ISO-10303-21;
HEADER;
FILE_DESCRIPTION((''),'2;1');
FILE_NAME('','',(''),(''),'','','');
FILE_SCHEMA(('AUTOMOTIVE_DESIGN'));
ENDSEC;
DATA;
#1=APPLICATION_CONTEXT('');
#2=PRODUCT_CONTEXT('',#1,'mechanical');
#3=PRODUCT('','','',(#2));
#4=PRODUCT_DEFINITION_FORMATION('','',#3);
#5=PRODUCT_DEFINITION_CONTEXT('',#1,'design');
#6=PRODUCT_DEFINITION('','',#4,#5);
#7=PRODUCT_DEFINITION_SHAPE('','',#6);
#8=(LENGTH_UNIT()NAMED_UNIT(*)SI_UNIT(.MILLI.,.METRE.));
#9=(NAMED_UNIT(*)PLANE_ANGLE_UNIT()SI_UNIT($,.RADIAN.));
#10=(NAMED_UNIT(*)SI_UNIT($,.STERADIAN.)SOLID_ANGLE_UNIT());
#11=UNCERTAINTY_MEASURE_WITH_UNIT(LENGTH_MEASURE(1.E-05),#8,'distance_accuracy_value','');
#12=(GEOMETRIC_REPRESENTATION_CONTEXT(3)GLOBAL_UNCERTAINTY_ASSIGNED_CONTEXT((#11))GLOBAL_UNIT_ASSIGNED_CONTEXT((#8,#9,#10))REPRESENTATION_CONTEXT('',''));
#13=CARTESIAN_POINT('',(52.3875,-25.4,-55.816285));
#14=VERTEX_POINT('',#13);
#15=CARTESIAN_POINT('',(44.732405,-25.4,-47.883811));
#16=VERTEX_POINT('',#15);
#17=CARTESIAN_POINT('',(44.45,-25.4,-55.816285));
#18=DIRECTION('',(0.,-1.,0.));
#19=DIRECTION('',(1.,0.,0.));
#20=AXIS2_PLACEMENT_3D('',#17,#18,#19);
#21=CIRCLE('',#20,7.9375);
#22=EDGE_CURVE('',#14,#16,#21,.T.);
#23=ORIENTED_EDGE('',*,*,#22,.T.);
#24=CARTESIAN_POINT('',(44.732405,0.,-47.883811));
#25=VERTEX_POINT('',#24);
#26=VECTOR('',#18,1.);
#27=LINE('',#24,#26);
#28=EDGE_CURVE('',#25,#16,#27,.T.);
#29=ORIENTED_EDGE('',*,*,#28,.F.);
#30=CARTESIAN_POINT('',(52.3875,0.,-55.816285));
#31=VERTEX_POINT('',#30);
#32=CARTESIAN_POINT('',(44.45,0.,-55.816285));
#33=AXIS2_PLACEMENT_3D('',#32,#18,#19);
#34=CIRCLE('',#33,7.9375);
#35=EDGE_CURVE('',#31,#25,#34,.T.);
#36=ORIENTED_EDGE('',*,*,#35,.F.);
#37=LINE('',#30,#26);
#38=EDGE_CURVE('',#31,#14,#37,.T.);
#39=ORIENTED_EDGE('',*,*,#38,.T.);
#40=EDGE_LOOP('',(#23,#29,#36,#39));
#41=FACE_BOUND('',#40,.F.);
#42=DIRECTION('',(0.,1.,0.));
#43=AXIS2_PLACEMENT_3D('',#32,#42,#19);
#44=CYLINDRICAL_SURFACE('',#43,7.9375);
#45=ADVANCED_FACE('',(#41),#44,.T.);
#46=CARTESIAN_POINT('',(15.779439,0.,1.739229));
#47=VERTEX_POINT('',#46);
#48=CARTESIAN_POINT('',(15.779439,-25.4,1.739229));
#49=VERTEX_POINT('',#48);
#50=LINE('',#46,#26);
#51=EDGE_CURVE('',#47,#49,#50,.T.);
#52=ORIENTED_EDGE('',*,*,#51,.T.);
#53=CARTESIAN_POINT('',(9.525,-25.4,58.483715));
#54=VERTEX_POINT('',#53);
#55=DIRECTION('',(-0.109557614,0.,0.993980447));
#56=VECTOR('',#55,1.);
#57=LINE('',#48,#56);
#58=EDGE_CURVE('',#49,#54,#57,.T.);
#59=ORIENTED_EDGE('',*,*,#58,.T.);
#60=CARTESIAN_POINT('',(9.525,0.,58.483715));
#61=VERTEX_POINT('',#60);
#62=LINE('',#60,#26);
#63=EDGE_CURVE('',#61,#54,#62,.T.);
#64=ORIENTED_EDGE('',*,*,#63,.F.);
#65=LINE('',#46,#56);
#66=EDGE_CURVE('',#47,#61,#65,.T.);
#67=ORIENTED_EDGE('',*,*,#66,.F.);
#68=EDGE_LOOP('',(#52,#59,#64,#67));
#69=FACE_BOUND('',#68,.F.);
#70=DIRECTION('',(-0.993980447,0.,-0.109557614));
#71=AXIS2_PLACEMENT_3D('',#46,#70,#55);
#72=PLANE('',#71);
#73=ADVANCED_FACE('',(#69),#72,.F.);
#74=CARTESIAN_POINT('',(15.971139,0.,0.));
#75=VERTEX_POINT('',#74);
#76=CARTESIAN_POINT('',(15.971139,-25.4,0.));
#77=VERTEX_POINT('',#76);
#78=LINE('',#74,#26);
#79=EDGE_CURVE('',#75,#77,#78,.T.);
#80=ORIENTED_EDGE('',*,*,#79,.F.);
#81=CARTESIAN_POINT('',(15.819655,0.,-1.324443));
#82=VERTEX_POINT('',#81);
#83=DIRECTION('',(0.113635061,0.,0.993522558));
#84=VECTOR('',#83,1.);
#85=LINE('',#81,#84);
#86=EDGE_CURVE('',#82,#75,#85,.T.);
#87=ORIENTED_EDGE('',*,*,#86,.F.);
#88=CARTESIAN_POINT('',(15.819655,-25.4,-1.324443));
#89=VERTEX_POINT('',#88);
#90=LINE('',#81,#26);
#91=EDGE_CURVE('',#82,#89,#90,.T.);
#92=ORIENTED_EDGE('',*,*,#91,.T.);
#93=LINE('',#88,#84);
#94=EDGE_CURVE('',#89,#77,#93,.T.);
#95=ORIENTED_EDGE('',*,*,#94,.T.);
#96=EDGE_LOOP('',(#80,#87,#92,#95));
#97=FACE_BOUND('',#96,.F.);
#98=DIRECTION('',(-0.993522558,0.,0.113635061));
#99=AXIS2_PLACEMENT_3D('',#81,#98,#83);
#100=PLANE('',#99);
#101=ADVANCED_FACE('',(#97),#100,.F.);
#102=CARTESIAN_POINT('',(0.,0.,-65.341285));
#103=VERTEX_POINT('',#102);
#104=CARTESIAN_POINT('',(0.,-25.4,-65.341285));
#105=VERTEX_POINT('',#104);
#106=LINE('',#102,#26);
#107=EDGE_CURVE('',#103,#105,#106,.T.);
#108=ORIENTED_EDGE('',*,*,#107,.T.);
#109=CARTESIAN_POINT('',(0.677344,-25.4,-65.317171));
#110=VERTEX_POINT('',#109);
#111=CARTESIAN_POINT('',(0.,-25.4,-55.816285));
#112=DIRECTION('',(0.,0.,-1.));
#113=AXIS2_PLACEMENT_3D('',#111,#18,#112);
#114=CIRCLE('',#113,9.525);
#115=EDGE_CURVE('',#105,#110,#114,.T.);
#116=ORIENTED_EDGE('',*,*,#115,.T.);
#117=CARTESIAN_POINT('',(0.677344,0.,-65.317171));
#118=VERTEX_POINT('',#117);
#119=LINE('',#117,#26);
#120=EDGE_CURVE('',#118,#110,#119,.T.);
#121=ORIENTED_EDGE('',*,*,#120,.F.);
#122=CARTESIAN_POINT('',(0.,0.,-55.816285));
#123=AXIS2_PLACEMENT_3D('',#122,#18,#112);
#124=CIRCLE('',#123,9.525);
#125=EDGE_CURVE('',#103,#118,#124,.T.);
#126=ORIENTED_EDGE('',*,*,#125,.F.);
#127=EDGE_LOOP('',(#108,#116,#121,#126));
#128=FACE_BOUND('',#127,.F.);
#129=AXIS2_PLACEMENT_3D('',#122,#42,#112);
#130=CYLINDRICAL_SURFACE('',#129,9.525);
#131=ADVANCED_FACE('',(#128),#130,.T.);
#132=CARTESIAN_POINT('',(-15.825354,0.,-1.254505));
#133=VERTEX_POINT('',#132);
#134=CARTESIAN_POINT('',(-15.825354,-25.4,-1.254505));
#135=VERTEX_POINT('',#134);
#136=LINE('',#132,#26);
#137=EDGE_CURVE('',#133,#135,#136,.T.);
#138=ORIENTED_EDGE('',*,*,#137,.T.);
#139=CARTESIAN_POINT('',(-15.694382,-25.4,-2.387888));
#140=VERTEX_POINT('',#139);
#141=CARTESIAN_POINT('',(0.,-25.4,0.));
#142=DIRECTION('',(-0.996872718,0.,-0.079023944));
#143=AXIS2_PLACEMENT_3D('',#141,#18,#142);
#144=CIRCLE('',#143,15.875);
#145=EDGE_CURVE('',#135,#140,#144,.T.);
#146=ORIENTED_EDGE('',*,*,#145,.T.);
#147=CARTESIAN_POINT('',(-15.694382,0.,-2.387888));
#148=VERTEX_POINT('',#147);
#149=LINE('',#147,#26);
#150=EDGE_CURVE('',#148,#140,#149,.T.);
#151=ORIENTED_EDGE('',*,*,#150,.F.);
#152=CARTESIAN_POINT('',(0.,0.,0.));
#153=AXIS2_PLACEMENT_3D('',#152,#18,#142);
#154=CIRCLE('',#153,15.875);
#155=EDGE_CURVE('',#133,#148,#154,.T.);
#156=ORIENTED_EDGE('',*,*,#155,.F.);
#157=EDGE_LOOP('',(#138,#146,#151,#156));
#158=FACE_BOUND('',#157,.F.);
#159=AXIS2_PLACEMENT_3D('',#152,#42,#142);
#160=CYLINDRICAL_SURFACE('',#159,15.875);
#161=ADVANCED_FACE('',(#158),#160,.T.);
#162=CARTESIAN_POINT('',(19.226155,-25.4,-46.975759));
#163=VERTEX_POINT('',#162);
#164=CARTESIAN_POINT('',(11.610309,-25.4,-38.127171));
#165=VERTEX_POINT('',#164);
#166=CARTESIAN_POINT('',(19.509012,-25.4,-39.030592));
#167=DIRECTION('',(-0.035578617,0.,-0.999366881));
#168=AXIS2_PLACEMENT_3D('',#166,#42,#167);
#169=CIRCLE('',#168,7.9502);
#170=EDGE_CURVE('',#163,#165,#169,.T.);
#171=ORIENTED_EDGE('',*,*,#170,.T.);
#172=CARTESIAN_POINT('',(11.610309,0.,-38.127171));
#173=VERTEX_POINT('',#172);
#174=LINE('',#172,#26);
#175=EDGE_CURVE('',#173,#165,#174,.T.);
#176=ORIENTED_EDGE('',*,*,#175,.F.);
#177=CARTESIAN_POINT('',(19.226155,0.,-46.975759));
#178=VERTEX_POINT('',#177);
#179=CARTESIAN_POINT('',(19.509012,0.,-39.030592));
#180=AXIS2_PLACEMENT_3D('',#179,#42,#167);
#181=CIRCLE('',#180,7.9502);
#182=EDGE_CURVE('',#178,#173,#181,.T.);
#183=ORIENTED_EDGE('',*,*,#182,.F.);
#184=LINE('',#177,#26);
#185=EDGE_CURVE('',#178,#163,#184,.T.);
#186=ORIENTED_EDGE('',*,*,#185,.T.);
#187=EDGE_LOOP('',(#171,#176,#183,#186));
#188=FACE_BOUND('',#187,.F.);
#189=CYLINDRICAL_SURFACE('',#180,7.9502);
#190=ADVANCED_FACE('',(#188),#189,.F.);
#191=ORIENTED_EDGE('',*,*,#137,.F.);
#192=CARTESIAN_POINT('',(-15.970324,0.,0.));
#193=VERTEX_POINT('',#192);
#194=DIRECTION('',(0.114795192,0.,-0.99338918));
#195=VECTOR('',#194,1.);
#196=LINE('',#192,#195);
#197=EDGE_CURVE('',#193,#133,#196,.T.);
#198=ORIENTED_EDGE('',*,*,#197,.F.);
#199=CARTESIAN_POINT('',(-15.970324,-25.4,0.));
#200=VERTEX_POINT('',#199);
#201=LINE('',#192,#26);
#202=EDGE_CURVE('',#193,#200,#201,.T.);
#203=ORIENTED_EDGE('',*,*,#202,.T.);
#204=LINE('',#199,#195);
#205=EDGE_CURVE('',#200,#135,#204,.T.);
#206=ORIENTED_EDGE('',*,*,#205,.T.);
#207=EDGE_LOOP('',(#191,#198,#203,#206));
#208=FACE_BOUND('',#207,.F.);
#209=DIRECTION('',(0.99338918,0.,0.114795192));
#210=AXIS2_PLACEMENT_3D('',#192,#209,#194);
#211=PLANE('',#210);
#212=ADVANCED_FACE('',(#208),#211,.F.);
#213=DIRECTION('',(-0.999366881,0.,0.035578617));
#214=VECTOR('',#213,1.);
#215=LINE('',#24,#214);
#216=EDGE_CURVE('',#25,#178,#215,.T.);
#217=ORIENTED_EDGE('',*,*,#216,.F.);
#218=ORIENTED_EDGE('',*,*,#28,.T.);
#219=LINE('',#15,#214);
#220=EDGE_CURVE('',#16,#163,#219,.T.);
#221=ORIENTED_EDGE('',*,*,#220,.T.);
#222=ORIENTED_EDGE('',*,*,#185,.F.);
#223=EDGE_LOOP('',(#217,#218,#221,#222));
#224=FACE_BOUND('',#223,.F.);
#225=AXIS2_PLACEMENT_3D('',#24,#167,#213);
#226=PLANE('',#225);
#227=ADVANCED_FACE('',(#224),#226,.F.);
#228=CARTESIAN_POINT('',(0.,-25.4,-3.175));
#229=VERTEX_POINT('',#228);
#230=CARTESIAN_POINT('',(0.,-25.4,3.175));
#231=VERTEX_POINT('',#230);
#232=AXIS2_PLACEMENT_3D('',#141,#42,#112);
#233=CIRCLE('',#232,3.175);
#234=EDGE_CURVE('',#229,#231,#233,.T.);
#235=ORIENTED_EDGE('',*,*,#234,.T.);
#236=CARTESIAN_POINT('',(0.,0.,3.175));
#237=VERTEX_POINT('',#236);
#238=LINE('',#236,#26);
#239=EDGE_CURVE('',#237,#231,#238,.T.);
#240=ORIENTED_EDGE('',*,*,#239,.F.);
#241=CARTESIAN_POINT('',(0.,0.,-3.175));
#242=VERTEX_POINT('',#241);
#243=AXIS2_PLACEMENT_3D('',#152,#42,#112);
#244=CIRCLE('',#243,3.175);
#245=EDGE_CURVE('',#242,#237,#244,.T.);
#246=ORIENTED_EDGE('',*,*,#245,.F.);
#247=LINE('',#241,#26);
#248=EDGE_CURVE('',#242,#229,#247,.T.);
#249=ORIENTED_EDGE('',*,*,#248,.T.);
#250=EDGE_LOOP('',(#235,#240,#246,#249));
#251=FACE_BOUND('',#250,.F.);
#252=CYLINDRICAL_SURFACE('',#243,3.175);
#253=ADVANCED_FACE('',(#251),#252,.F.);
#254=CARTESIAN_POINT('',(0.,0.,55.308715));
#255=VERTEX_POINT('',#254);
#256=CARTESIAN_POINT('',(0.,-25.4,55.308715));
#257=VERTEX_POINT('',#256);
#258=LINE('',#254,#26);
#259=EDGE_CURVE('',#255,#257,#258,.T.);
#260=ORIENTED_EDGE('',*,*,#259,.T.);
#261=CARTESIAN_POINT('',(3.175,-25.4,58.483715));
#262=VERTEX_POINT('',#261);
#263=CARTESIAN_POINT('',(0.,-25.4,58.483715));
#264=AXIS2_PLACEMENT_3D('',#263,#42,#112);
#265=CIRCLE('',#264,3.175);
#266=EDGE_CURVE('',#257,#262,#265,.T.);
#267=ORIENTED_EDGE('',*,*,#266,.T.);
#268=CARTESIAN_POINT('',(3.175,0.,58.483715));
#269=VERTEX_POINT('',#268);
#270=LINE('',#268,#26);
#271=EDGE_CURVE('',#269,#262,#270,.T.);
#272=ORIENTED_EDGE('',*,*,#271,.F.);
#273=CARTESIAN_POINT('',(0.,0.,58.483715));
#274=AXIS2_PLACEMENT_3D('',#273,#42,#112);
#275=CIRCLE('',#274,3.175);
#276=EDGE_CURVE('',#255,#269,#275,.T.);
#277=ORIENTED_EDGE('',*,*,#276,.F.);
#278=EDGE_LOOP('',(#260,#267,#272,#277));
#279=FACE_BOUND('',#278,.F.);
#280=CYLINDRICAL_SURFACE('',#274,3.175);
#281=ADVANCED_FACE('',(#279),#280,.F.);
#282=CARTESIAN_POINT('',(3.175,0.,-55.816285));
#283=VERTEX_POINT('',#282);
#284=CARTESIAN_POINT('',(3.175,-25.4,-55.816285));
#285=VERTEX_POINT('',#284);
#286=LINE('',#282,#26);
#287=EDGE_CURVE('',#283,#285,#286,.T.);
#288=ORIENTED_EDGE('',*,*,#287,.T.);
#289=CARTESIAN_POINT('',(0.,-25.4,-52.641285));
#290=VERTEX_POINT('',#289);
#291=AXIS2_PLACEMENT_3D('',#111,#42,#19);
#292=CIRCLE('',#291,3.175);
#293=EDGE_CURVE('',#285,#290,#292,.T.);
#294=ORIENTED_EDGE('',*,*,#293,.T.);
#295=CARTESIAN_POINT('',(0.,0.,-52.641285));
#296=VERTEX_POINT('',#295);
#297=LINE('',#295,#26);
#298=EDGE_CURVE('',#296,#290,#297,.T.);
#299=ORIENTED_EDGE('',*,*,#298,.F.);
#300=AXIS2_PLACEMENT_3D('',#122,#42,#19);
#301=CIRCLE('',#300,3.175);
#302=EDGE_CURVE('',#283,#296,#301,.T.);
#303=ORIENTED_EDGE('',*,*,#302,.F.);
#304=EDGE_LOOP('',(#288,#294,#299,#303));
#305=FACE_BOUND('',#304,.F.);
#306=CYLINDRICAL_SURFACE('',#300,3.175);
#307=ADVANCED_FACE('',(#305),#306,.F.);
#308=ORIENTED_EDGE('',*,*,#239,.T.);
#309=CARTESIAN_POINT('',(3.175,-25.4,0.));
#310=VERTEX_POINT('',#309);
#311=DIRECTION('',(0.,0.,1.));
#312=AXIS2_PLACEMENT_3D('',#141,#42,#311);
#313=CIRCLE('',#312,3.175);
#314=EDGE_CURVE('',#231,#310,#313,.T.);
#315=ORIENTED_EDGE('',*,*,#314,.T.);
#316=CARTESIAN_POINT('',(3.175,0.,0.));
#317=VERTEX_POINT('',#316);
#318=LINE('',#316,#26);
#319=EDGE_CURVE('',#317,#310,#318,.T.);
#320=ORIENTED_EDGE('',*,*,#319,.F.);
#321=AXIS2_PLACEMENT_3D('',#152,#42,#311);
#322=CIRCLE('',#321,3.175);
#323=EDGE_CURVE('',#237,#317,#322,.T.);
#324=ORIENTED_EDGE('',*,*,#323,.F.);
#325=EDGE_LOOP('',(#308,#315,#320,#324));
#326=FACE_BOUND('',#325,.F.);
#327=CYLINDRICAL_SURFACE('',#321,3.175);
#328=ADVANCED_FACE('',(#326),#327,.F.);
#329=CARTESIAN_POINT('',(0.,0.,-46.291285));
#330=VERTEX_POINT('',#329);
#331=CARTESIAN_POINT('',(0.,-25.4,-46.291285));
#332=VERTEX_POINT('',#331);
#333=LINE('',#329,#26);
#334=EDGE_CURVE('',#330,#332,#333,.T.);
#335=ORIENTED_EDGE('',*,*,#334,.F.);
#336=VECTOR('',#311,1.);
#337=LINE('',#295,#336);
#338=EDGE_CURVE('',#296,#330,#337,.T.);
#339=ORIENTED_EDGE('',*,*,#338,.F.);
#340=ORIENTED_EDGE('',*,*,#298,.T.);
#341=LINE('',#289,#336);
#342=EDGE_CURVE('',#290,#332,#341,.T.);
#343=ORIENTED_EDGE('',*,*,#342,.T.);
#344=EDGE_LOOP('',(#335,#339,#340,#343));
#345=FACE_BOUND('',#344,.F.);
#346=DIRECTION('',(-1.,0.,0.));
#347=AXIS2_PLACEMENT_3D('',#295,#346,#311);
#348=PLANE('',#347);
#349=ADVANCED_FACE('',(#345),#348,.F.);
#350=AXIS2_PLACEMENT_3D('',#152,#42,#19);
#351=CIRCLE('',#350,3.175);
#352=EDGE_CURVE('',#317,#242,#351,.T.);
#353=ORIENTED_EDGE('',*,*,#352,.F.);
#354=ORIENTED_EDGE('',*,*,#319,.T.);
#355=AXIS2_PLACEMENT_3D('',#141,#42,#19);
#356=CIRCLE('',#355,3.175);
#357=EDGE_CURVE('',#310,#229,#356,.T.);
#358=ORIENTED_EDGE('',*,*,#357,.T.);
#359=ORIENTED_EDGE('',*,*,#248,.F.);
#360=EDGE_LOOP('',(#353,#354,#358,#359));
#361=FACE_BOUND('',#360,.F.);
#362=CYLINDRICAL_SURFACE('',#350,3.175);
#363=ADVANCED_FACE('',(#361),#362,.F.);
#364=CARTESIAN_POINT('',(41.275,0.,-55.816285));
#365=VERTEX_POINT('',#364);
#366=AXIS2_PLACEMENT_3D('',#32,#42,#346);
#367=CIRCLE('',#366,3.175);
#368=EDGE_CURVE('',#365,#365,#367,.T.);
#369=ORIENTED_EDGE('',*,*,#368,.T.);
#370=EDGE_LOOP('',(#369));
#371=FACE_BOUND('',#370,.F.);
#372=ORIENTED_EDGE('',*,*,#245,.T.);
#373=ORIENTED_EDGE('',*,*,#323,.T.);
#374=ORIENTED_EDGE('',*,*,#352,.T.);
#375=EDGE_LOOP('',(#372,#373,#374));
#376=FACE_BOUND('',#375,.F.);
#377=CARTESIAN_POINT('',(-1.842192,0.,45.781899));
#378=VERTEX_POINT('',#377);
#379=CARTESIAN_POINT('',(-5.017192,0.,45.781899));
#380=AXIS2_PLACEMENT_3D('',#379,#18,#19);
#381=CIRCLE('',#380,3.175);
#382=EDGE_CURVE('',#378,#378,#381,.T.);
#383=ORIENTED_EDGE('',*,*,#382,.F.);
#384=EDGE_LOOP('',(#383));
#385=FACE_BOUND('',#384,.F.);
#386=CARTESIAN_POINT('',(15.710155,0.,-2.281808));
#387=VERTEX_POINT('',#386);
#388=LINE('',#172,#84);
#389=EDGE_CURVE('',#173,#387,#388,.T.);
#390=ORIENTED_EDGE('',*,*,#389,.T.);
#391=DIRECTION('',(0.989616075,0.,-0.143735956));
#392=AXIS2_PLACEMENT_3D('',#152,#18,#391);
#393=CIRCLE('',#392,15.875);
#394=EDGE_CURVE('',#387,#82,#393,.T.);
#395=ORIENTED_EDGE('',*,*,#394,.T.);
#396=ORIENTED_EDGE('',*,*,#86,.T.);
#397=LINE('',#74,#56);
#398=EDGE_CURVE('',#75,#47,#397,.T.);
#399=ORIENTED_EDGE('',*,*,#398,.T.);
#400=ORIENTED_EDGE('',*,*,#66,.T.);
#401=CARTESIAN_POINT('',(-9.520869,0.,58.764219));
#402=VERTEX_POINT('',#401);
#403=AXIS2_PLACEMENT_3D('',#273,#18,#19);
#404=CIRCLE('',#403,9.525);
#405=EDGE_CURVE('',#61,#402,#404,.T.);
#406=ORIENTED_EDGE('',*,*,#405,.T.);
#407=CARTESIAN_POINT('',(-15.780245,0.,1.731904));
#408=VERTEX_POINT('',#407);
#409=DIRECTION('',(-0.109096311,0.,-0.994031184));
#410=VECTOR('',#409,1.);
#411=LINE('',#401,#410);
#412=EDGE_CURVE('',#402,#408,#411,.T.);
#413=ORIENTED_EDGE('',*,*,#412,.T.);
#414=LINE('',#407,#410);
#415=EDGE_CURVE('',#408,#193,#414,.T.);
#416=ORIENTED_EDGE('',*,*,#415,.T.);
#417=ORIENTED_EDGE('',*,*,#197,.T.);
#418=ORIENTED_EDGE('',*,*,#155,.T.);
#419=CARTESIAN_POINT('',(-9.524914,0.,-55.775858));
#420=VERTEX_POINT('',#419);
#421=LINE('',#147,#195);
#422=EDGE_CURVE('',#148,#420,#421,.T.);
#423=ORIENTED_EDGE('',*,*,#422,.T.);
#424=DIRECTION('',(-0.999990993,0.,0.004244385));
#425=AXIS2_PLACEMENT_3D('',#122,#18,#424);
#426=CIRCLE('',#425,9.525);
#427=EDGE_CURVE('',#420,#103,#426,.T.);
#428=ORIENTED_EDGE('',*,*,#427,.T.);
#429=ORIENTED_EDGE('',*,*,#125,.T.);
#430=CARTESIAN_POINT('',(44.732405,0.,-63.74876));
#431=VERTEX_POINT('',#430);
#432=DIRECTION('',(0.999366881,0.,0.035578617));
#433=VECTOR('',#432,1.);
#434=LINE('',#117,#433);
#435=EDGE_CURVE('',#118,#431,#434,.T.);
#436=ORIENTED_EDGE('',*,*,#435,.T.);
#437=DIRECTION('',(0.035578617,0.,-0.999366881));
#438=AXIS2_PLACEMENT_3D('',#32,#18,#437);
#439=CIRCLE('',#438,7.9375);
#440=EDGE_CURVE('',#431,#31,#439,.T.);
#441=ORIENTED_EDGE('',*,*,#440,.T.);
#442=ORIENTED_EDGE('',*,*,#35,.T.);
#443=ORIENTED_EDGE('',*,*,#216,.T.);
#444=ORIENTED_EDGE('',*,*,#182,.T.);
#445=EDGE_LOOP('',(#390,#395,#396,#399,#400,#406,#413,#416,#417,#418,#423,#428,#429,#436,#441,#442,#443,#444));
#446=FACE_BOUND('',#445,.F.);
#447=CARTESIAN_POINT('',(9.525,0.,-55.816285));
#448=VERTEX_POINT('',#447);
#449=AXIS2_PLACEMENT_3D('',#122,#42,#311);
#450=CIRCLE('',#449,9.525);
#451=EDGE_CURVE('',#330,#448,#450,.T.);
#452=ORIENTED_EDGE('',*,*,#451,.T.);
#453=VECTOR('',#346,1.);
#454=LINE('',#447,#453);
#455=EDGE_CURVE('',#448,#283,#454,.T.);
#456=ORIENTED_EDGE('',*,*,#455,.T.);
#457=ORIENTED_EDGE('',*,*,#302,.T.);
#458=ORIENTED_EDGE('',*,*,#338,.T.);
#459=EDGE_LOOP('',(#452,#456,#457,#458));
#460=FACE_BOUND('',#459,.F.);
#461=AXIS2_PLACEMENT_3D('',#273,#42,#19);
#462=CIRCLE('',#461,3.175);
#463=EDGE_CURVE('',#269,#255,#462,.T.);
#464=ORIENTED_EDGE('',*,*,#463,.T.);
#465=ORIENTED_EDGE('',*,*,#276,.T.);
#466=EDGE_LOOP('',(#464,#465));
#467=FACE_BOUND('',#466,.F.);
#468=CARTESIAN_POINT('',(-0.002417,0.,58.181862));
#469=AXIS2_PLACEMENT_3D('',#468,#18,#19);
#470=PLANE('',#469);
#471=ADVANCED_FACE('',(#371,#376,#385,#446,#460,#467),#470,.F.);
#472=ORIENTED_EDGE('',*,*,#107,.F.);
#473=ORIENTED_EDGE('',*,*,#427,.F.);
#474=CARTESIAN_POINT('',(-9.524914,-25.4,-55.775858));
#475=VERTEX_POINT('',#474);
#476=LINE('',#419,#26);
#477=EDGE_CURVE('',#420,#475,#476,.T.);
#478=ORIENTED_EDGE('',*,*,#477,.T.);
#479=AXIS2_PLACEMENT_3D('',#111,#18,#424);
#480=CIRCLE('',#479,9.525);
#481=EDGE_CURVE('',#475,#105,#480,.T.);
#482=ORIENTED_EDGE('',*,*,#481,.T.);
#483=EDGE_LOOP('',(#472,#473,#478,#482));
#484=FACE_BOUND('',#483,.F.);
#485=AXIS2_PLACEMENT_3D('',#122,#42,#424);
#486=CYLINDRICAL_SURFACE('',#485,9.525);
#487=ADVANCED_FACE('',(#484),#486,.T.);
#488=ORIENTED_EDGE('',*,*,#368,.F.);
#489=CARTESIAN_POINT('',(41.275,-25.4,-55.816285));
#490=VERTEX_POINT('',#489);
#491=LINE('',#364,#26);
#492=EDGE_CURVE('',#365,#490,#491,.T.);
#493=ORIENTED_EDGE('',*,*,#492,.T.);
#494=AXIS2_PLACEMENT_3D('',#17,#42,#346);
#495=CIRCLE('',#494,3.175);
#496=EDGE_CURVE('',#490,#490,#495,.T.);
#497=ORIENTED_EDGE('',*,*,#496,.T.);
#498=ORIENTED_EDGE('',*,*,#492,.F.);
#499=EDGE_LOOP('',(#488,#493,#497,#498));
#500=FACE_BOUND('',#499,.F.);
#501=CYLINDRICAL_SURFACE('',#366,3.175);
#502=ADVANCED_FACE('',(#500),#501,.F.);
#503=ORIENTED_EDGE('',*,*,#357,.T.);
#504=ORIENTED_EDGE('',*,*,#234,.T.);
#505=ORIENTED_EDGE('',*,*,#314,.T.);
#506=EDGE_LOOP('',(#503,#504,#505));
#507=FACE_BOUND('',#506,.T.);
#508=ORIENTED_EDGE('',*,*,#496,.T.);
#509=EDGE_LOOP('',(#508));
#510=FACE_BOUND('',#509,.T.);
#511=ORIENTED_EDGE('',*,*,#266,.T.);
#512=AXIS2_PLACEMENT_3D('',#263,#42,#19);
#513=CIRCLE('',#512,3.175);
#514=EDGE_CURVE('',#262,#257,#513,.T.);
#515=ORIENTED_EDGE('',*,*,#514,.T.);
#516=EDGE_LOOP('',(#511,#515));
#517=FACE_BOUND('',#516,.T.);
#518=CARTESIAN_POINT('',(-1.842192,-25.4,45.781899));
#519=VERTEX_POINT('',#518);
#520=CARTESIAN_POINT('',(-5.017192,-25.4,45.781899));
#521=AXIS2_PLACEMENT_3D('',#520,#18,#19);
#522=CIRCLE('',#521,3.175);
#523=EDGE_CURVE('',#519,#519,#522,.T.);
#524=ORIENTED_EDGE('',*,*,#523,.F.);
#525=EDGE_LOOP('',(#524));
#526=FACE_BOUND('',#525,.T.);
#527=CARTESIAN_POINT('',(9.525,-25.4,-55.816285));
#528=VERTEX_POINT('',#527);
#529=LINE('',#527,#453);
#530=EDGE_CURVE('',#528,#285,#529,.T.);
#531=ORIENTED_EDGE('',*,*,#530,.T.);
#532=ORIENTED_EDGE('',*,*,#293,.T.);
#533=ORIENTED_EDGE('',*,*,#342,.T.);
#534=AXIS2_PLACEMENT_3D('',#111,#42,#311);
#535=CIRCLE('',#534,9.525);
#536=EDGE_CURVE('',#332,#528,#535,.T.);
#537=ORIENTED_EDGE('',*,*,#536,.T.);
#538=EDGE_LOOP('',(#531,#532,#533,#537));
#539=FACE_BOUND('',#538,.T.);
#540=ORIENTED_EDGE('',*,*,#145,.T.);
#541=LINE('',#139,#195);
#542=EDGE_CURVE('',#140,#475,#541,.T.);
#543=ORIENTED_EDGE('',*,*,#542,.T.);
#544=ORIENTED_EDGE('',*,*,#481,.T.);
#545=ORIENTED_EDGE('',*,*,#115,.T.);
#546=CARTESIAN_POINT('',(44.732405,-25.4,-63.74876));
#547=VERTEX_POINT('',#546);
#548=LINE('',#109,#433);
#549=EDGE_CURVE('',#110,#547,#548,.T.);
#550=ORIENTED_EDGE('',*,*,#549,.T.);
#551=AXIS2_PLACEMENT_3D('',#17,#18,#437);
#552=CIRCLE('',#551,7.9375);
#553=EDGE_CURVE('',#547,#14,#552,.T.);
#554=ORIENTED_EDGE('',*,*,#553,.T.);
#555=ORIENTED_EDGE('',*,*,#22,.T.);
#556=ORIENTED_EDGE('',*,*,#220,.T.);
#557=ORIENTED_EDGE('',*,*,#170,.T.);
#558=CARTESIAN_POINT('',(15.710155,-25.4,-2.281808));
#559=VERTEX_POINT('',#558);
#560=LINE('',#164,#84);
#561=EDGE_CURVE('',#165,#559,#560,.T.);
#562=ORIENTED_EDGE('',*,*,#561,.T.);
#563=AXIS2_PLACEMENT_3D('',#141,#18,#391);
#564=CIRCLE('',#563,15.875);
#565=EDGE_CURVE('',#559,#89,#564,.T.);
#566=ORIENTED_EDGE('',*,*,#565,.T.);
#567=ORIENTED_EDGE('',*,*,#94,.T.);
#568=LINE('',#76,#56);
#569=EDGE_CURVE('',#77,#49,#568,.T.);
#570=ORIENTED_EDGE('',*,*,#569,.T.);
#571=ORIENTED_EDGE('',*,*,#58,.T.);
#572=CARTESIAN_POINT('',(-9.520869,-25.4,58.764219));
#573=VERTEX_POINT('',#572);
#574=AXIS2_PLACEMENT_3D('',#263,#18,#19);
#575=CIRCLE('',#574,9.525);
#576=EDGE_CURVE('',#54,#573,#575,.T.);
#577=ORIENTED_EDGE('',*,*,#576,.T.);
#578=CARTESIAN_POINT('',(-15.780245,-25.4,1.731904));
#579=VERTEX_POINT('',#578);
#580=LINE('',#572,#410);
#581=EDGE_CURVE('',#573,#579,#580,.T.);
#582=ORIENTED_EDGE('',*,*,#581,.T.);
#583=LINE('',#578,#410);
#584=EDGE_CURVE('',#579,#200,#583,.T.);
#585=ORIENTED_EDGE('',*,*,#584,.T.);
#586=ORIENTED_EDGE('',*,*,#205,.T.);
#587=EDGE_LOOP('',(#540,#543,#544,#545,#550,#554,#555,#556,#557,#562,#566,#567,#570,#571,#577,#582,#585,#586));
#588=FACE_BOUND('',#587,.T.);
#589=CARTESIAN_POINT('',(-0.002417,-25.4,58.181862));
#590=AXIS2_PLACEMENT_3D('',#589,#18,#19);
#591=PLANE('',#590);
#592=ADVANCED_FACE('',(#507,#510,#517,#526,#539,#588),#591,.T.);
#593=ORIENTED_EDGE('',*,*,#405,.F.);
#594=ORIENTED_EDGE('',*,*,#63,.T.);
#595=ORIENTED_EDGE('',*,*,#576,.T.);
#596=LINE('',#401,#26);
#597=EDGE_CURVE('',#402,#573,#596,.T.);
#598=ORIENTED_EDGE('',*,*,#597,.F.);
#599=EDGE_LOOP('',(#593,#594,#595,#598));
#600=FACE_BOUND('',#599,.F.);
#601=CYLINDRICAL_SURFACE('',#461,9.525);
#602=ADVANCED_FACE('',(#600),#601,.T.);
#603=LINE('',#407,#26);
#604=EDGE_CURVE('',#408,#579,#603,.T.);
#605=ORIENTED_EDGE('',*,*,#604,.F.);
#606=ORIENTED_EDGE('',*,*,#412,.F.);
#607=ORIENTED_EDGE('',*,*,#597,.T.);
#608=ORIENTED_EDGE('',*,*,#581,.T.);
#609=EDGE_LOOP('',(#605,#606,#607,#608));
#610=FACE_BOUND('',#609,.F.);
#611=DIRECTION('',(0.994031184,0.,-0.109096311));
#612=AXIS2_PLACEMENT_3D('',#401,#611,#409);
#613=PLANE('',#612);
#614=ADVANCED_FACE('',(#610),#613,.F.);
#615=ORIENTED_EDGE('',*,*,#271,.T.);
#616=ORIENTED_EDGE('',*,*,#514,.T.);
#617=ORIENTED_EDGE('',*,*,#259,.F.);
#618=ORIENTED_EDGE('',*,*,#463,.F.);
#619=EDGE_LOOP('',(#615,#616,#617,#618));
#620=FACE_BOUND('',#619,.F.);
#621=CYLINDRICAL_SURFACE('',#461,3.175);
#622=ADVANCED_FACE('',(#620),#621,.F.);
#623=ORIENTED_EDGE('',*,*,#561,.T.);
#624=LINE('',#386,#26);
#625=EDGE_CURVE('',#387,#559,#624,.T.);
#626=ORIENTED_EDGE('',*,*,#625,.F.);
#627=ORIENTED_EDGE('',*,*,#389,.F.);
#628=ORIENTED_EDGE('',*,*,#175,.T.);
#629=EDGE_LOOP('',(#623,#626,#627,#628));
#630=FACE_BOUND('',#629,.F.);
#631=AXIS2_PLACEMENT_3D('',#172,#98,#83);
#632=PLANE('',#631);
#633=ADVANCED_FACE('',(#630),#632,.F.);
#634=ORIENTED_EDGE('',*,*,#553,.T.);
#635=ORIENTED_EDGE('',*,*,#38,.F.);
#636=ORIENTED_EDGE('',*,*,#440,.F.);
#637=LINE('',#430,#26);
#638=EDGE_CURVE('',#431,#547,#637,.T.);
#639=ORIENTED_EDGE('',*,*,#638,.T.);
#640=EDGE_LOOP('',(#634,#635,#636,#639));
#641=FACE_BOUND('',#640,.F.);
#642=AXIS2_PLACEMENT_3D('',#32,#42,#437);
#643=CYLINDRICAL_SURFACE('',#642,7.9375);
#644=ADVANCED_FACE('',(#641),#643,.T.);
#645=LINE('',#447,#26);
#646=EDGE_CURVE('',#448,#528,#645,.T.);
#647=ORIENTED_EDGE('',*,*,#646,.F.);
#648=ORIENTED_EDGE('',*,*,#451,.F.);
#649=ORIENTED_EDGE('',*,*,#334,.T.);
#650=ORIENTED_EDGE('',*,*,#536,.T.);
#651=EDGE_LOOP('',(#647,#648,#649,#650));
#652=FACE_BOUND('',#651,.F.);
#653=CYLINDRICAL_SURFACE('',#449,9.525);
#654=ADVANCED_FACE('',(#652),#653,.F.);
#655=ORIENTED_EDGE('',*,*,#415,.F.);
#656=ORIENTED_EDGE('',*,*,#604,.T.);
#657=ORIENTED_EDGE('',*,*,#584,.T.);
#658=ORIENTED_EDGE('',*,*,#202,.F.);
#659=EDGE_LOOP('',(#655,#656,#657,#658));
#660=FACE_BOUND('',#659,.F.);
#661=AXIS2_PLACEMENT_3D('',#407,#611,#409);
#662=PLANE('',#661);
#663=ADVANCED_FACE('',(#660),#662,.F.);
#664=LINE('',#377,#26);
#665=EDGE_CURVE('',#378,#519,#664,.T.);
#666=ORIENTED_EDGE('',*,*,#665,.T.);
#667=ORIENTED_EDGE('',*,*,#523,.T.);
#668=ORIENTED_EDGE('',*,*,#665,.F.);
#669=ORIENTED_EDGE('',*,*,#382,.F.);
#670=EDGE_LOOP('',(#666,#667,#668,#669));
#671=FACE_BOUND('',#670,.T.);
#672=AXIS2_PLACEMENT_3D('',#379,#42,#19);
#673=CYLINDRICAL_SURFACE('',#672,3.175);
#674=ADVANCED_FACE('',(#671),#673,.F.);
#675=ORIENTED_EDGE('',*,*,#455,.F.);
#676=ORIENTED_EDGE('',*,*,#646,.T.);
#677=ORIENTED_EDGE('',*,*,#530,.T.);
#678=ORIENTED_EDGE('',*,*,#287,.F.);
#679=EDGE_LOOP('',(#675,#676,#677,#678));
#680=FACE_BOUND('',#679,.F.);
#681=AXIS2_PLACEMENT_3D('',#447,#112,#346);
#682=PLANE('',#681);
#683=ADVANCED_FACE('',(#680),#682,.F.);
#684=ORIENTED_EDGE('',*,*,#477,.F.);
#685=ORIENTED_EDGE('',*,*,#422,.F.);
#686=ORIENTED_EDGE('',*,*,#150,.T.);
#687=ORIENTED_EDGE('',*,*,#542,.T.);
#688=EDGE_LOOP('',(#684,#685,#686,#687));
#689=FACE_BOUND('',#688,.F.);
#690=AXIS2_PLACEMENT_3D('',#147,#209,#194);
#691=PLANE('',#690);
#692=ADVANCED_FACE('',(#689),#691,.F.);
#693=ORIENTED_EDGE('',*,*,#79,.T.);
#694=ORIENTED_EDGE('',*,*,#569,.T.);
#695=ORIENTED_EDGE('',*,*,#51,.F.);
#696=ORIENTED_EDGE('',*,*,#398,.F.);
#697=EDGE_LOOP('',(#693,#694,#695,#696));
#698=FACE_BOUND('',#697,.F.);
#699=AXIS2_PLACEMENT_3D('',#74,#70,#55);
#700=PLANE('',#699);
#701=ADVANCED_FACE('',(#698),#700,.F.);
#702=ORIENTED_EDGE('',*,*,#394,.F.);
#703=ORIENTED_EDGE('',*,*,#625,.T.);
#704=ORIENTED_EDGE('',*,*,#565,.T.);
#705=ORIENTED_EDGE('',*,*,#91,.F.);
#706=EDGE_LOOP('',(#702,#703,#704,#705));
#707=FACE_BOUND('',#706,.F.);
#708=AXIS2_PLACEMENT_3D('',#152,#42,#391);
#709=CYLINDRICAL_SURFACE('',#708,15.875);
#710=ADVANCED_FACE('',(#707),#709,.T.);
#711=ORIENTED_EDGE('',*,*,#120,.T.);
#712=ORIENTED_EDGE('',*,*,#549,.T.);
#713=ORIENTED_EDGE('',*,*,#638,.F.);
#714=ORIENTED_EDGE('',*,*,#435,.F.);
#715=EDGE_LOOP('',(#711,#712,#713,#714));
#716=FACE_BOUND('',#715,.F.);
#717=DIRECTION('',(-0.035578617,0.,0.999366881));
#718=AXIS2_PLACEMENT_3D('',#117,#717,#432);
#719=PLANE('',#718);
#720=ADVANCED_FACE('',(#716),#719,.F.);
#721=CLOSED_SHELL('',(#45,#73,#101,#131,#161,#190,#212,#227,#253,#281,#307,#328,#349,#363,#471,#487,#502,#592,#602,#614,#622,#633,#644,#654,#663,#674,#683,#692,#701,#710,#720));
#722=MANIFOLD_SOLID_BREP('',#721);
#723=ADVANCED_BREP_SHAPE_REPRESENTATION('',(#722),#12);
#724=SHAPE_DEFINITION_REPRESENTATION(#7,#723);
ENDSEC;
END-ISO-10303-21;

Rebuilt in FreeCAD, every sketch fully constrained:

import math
import FreeCAD as App
import Part
import Sketcher
from FreeCAD import Vector
Q = App.Units.Quantity

doc = App.newDocument("Part")
body = doc.addObject("PartDesign::Body", "Body")

# Sketch on XZ plane
sketch1 = body.newObject("Sketcher::SketchObject", "Sketch")
sketch1.AttachmentSupport = (doc.getObject("XZ_Plane"), [""])
sketch1.MapMode = "FlatFace"
sketch1.addGeometry(Part.LineSegment(Vector(0.677344, -65.317171, 0), Vector(44.732405, -63.74876, 0)), False)
sketch1.addGeometry(Part.ArcOfCircle(Part.Circle(Vector(44.45, -55.816285, 0), Vector(0, 0, 1), 7.9375), math.radians(-87.961065), math.radians(0)), False)
sketch1.addGeometry(Part.ArcOfCircle(Part.Circle(Vector(44.45, -55.816285, 0), Vector(0, 0, 1), 7.9375), math.radians(0), math.radians(87.961065)), False)
sketch1.addGeometry(Part.LineSegment(Vector(44.732405, -47.883811, 0), Vector(19.226155, -46.975759, 0)), False)
sketch1.addGeometry(Part.ArcOfCircle(Part.Circle(Vector(19.509012, -39.030592, 0), Vector(0, 0, 1), 7.9502), math.radians(173.475096), math.radians(267.961065)), False)
sketch1.addGeometry(Part.LineSegment(Vector(11.610309, -38.127171, 0), Vector(15.710155, -2.281808, 0)), False)
sketch1.addGeometry(Part.ArcOfCircle(Part.Circle(Vector(0, 0, 0), Vector(0, 0, 1), 15.875), math.radians(-8.264088), math.radians(-4.785719)), False)
sketch1.addGeometry(Part.LineSegment(Vector(15.819655, -1.324443, 0), Vector(15.971139, 0, 0)), False)
sketch1.addGeometry(Part.LineSegment(Vector(15.971139, 0, 0), Vector(15.779439, 1.739229, 0)), False)
sketch1.addGeometry(Part.LineSegment(Vector(15.779439, 1.739229, 0), Vector(9.525, 58.483715, 0)), False)
sketch1.addGeometry(Part.ArcOfCircle(Part.Circle(Vector(0, 58.483715, 0), Vector(0, 0, 1), 9.525), math.radians(0), math.radians(178.312436)), False)
sketch1.addGeometry(Part.LineSegment(Vector(-9.520869, 58.764219, 0), Vector(-15.780245, 1.731904, 0)), False)
sketch1.addGeometry(Part.LineSegment(Vector(-15.780245, 1.731904, 0), Vector(-15.970324, 0, 0)), False)
sketch1.addGeometry(Part.LineSegment(Vector(-15.970324, 0, 0), Vector(-15.825354, -1.254505, 0)), False)
sketch1.addGeometry(Part.ArcOfCircle(Part.Circle(Vector(0, 0, 0), Vector(0, 0, 1), 15.875), math.radians(-175.467536), math.radians(-171.34884)), False)
sketch1.addGeometry(Part.LineSegment(Vector(-15.694382, -2.387888, 0), Vector(-9.524914, -55.775858, 0)), False)
sketch1.addGeometry(Part.ArcOfCircle(Part.Circle(Vector(0, -55.816285, 0), Vector(0, 0, 1), 9.525), math.radians(179.756814), math.radians(270)), False)
sketch1.addGeometry(Part.ArcOfCircle(Part.Circle(Vector(0, -55.816285, 0), Vector(0, 0, 1), 9.525), math.radians(-90), math.radians(-85.92213)), False)
sketch1.addGeometry(Part.ArcOfCircle(Part.Circle(Vector(0, -55.816285, 0), Vector(0, 0, 1), 9.525), math.radians(0), math.radians(90)), False)
sketch1.addGeometry(Part.LineSegment(Vector(9.525, -55.816285, 0), Vector(3.175, -55.816285, 0)), False)
sketch1.addGeometry(Part.ArcOfCircle(Part.Circle(Vector(0, -55.816285, 0), Vector(0, 0, 1), 3.175), math.radians(90), math.radians(360)), False)
sketch1.addGeometry(Part.LineSegment(Vector(0, -52.641285, 0), Vector(0, -46.291285, 0)), False)
sketch1.addGeometry(Part.ArcOfCircle(Part.Circle(Vector(0, 0, 0), Vector(0, 0, 1), 3.175), math.radians(0), math.radians(90)), False)
sketch1.addGeometry(Part.ArcOfCircle(Part.Circle(Vector(0, 0, 0), Vector(0, 0, 1), 3.175), math.radians(-90), math.radians(0)), False)
sketch1.addGeometry(Part.ArcOfCircle(Part.Circle(Vector(0, 0, 0), Vector(0, 0, 1), 3.175), math.radians(90), math.radians(270)), False)
sketch1.addGeometry(Part.Circle(Vector(44.45, -55.816285, 0), Vector(0, 0, 1), 3.175), False)
sketch1.addGeometry(Part.Circle(Vector(-5.017192, 45.781899, 0), Vector(0, 0, 1), 3.175), False)
sketch1.addGeometry(Part.ArcOfCircle(Part.Circle(Vector(0, 58.483715, 0), Vector(0, 0, 1), 3.175), math.radians(0), math.radians(270)), False)
sketch1.addGeometry(Part.ArcOfCircle(Part.Circle(Vector(0, 58.483715, 0), Vector(0, 0, 1), 3.175), math.radians(-90), math.radians(0)), False)
sketch1.addConstraint(Sketcher.Constraint("Coincident", 0, 2, 1, 1))
sketch1.addConstraint(Sketcher.Constraint("Coincident", 1, 2, 2, 1))
sketch1.addConstraint(Sketcher.Constraint("Coincident", 2, 2, 3, 1))
sketch1.addConstraint(Sketcher.Constraint("Coincident", 3, 2, 4, 2))
sketch1.addConstraint(Sketcher.Constraint("Coincident", 4, 1, 5, 1))
sketch1.addConstraint(Sketcher.Constraint("Coincident", 5, 2, 6, 1))
sketch1.addConstraint(Sketcher.Constraint("Coincident", 6, 2, 7, 1))
sketch1.addConstraint(Sketcher.Constraint("Coincident", 7, 2, 8, 1))
sketch1.addConstraint(Sketcher.Constraint("Coincident", 8, 2, 9, 1))
sketch1.addConstraint(Sketcher.Constraint("Coincident", 9, 2, 10, 1))
sketch1.addConstraint(Sketcher.Constraint("Coincident", 10, 2, 11, 1))
sketch1.addConstraint(Sketcher.Constraint("Coincident", 11, 2, 12, 1))
sketch1.addConstraint(Sketcher.Constraint("Coincident", 12, 2, 13, 1))
sketch1.addConstraint(Sketcher.Constraint("Coincident", 13, 2, 14, 1))
sketch1.addConstraint(Sketcher.Constraint("Coincident", 14, 2, 15, 1))
sketch1.addConstraint(Sketcher.Constraint("Coincident", 15, 2, 16, 1))
sketch1.addConstraint(Sketcher.Constraint("Coincident", 16, 2, 17, 1))
sketch1.addConstraint(Sketcher.Constraint("Coincident", 17, 2, 0, 1))
sketch1.addConstraint(Sketcher.Constraint("Coincident", 18, 1, 19, 1))
sketch1.addConstraint(Sketcher.Constraint("Coincident", 19, 2, 20, 2))
sketch1.addConstraint(Sketcher.Constraint("Coincident", 20, 1, 21, 1))
sketch1.addConstraint(Sketcher.Constraint("Coincident", 21, 2, 18, 2))
sketch1.addConstraint(Sketcher.Constraint("Coincident", 22, 1, 23, 2))
sketch1.addConstraint(Sketcher.Constraint("Coincident", 23, 1, 24, 2))
sketch1.addConstraint(Sketcher.Constraint("Coincident", 24, 1, 22, 2))
sketch1.addConstraint(Sketcher.Constraint("Coincident", 27, 1, 28, 2))
sketch1.addConstraint(Sketcher.Constraint("Coincident", 28, 1, 27, 2))
sketch1.addConstraint(Sketcher.Constraint("Horizontal", 19))
sketch1.addConstraint(Sketcher.Constraint("Vertical", 21))
sketch1.addConstraint(Sketcher.Constraint("Coincident", 6, 3, -1, 1))
sketch1.addConstraint(Sketcher.Constraint("Coincident", 14, 3, -1, 1))
sketch1.addConstraint(Sketcher.Constraint("Coincident", 22, 3, -1, 1))
sketch1.addConstraint(Sketcher.Constraint("Coincident", 23, 3, -1, 1))
sketch1.addConstraint(Sketcher.Constraint("Coincident", 2, 3, 1, 3))
sketch1.addConstraint(Sketcher.Constraint("Coincident", 17, 3, 16, 3))
sketch1.addConstraint(Sketcher.Constraint("Coincident", 18, 3, 16, 3))
sketch1.addConstraint(Sketcher.Constraint("Coincident", 20, 3, 16, 3))
sketch1.addConstraint(Sketcher.Constraint("Coincident", 25, 3, 1, 3))
sketch1.addConstraint(Sketcher.Constraint("Coincident", 27, 3, 10, 3))
sketch1.addConstraint(Sketcher.Constraint("PointOnObject", 10, 3, -2))
sketch1.addConstraint(Sketcher.Constraint("PointOnObject", 16, 3, -2))
sketch1.addConstraint(Sketcher.Constraint("PointOnObject", 28, 3, -2))
sketch1.addConstraint(Sketcher.Constraint("PointOnObject", 7, 2, -1))
sketch1.addConstraint(Sketcher.Constraint("PointOnObject", 12, 2, -1))
sketch1.addConstraint(Sketcher.Constraint("PointOnObject", 16, 2, -2))
sketch1.addConstraint(Sketcher.Constraint("PointOnObject", 20, 1, -2))
sketch1.addConstraint(Sketcher.Constraint("PointOnObject", 22, 1, -1))
sketch1.addConstraint(Sketcher.Constraint("PointOnObject", 23, 1, -2))
sketch1.addConstraint(Sketcher.Constraint("PointOnObject", 24, 1, -2))
sketch1.addConstraint(Sketcher.Constraint("PointOnObject", 28, 1, -2))
sketch1.addConstraint(Sketcher.Constraint("Diameter", 25, Q("0.25 in")))
sketch1.addConstraint(Sketcher.Constraint("Diameter", 26, Q("0.25 in")))
sketch1.addConstraint(Sketcher.Constraint("Radius", 1, Q("0.3125 in")))
sketch1.addConstraint(Sketcher.Constraint("Radius", 4, Q("0.313 in")))
sketch1.addConstraint(Sketcher.Constraint("Radius", 6, Q("0.625 in")))
sketch1.addConstraint(Sketcher.Constraint("Radius", 10, Q("0.375 in")))
sketch1.addConstraint(Sketcher.Constraint("Radius", 14, Q("0.625 in")))
sketch1.addConstraint(Sketcher.Constraint("Radius", 16, Q("0.375 in")))
sketch1.addConstraint(Sketcher.Constraint("Radius", 18, Q("0.375 in")))
sketch1.addConstraint(Sketcher.Constraint("Radius", 20, Q("0.125 in")))
sketch1.addConstraint(Sketcher.Constraint("Radius", 22, Q("0.125 in")))
sketch1.addConstraint(Sketcher.Constraint("Radius", 27, Q("0.125 in")))
sketch1.addConstraint(Sketcher.Constraint("DistanceY", 1, 3, 10, 3, Q("4.5 in")))
sketch1.addConstraint(Sketcher.Constraint("DistanceX", -1, 1, 1, 3, Q("1.75 in")))
sketch1.addConstraint(Sketcher.Constraint("DistanceY", 19, 2, 20, 1, Q("0.125 in")))
sketch1.addConstraint(Sketcher.Constraint("DistanceX", 24, 3, 22, 1, Q("0.125 in")))
sketch1.addConstraint(Sketcher.Constraint("DistanceY", 28, 1, 27, 1, Q("0.125 in")))
sketch1.addConstraint(Sketcher.Constraint("DistanceY", 28, 1, 9, 2, Q("0.125 in")))
sketch1.addConstraint(Sketcher.Constraint("DistanceY", 15, 2, -1, 1, Q("2.1958999 in")))
sketch1.addConstraint(Sketcher.Constraint("DistanceY", -1, 1, 26, 3, 45.781899))
sketch1.addConstraint(Sketcher.Constraint("DistanceX", 5, 2, 6, 2, 0.1095))
sketch1.addConstraint(Sketcher.Constraint("DistanceX", 8, 2, 7, 2, 0.1917))
sketch1.addConstraint(Sketcher.Constraint("Distance", 0, 44.082972))
sketch1.addConstraint(Sketcher.Constraint("Distance", 3, 25.522409))
sketch1.addConstraint(Sketcher.Constraint("Distance", 8, 1.749761))
sketch1.addConstraint(Sketcher.Constraint("Distance", 9, 57.088131))
sketch1.addConstraint(Sketcher.Constraint("DistanceX", -1, 1, 4, 3, 19.509012))
sketch1.addConstraint(Sketcher.Constraint("DistanceX", 26, 3, -1, 1, 5.017192))
sketch1.addConstraint(Sketcher.Constraint("DistanceY", 0, 2, -1, 1, 63.74876))
sketch1.addConstraint(Sketcher.Constraint("DistanceY", 2, 2, -1, 1, 47.883811))
sketch1.addConstraint(Sketcher.Constraint("DistanceY", 3, 2, -1, 1, 46.975759))
sketch1.addConstraint(Sketcher.Constraint("DistanceX", -1, 1, 4, 1, 11.610309))
sketch1.addConstraint(Sketcher.Constraint("DistanceY", 4, 1, -1, 1, 38.127171))
sketch1.addConstraint(Sketcher.Constraint("DistanceY", 5, 2, -1, 1, 2.281808))
sketch1.addConstraint(Sketcher.Constraint("DistanceX", 10, 2, -1, 1, 9.520869))
sketch1.addConstraint(Sketcher.Constraint("DistanceX", 14, 2, -1, 1, 15.694382))
sketch1.addConstraint(Sketcher.Constraint("DistanceY", 17, 2, -1, 1, 65.317171))
sketch1.addConstraint(Sketcher.Constraint("DistanceX", 12, 2, 11, 2, 0.190079))
sketch1.addConstraint(Sketcher.Constraint("DistanceX", 12, 2, 13, 2, 0.14497))
sketch1.addConstraint(Sketcher.Constraint("DistanceY", 13, 2, 11, 2, 2.986409))
sketch1.addConstraint(Sketcher.Constraint("Distance", 11, 57.374774))
sketch1.addConstraint(Sketcher.Constraint("DistanceY", 1, 2, -1, 1, 55.816285))
pad1 = body.newObject("PartDesign::Pad", "Pad")
pad1.Profile = sketch1
pad1.Length = Q("1 in")

# Sketch on XZ plane
sketch2 = body.newObject("Sketcher::SketchObject", "Sketch001")
sketch2.AttachmentSupport = (doc.getObject("XZ_Plane"), [""])
sketch2.MapMode = "FlatFace"
sketch2.addGeometry(Part.LineSegment(Vector(0.677344, -65.317171, 0), Vector(44.732405, -63.74876, 0)), False)
sketch2.addGeometry(Part.ArcOfCircle(Part.Circle(Vector(44.45, -55.816285, 0), Vector(0, 0, 1), 7.9375), math.radians(-87.961065), math.radians(0)), False)
sketch2.addGeometry(Part.ArcOfCircle(Part.Circle(Vector(44.45, -55.816285, 0), Vector(0, 0, 1), 7.9375), math.radians(0), math.radians(87.961065)), False)
sketch2.addGeometry(Part.LineSegment(Vector(44.732405, -47.883811, 0), Vector(19.226155, -46.975759, 0)), False)
sketch2.addGeometry(Part.ArcOfCircle(Part.Circle(Vector(19.509012, -39.030592, 0), Vector(0, 0, 1), 7.9502), math.radians(173.475096), math.radians(267.961065)), False)
sketch2.addGeometry(Part.LineSegment(Vector(11.610309, -38.127171, 0), Vector(15.710155, -2.281808, 0)), False)
sketch2.addGeometry(Part.ArcOfCircle(Part.Circle(Vector(0, 0, 0), Vector(0, 0, 1), 15.875), math.radians(-8.264088), math.radians(-4.785719)), False)
sketch2.addGeometry(Part.LineSegment(Vector(15.819655, -1.324443, 0), Vector(15.971139, 0, 0)), False)
sketch2.addGeometry(Part.LineSegment(Vector(15.971139, 0, 0), Vector(15.779439, 1.739229, 0)), False)
sketch2.addGeometry(Part.LineSegment(Vector(15.779439, 1.739229, 0), Vector(9.525, 58.483715, 0)), False)
sketch2.addGeometry(Part.ArcOfCircle(Part.Circle(Vector(0, 58.483715, 0), Vector(0, 0, 1), 9.525), math.radians(0), math.radians(178.312436)), False)
sketch2.addGeometry(Part.LineSegment(Vector(-9.520869, 58.764219, 0), Vector(-15.780245, 1.731904, 0)), False)
sketch2.addGeometry(Part.LineSegment(Vector(-15.780245, 1.731904, 0), Vector(-15.970324, 0, 0)), False)
sketch2.addGeometry(Part.LineSegment(Vector(-15.970324, 0, 0), Vector(-15.825354, -1.254505, 0)), False)
sketch2.addGeometry(Part.ArcOfCircle(Part.Circle(Vector(0, 0, 0), Vector(0, 0, 1), 15.875), math.radians(-175.467536), math.radians(-171.34884)), False)
sketch2.addGeometry(Part.LineSegment(Vector(-15.694382, -2.387888, 0), Vector(-9.524914, -55.775858, 0)), False)
sketch2.addGeometry(Part.ArcOfCircle(Part.Circle(Vector(0, -55.816285, 0), Vector(0, 0, 1), 9.525), math.radians(179.756814), math.radians(270)), False)
sketch2.addGeometry(Part.ArcOfCircle(Part.Circle(Vector(0, -55.816285, 0), Vector(0, 0, 1), 9.525), math.radians(-90), math.radians(-85.92213)), False)
sketch2.addGeometry(Part.ArcOfCircle(Part.Circle(Vector(0, -55.816285, 0), Vector(0, 0, 1), 9.525), math.radians(0), math.radians(90)), False)
sketch2.addGeometry(Part.LineSegment(Vector(9.525, -55.816285, 0), Vector(3.175, -55.816285, 0)), False)
sketch2.addGeometry(Part.ArcOfCircle(Part.Circle(Vector(0, -55.816285, 0), Vector(0, 0, 1), 3.175), math.radians(90), math.radians(360)), False)
sketch2.addGeometry(Part.LineSegment(Vector(0, -52.641285, 0), Vector(0, -46.291285, 0)), False)
sketch2.addGeometry(Part.ArcOfCircle(Part.Circle(Vector(0, 0, 0), Vector(0, 0, 1), 3.175), math.radians(0), math.radians(90)), False)
sketch2.addGeometry(Part.ArcOfCircle(Part.Circle(Vector(0, 0, 0), Vector(0, 0, 1), 3.175), math.radians(-90), math.radians(0)), False)
sketch2.addGeometry(Part.ArcOfCircle(Part.Circle(Vector(0, 0, 0), Vector(0, 0, 1), 3.175), math.radians(90), math.radians(270)), False)
sketch2.addGeometry(Part.Circle(Vector(44.45, -55.816285, 0), Vector(0, 0, 1), 3.175), False)
sketch2.addGeometry(Part.Circle(Vector(-5.017192, 45.781899, 0), Vector(0, 0, 1), 3.175), False)
sketch2.addGeometry(Part.ArcOfCircle(Part.Circle(Vector(0, 58.483715, 0), Vector(0, 0, 1), 3.175), math.radians(0), math.radians(270)), False)
sketch2.addGeometry(Part.ArcOfCircle(Part.Circle(Vector(0, 58.483715, 0), Vector(0, 0, 1), 3.175), math.radians(-90), math.radians(0)), False)
sketch2.addConstraint(Sketcher.Constraint("Coincident", 0, 2, 1, 1))
sketch2.addConstraint(Sketcher.Constraint("Coincident", 1, 2, 2, 1))
sketch2.addConstraint(Sketcher.Constraint("Coincident", 2, 2, 3, 1))
sketch2.addConstraint(Sketcher.Constraint("Coincident", 3, 2, 4, 2))
sketch2.addConstraint(Sketcher.Constraint("Coincident", 4, 1, 5, 1))
sketch2.addConstraint(Sketcher.Constraint("Coincident", 5, 2, 6, 1))
sketch2.addConstraint(Sketcher.Constraint("Coincident", 6, 2, 7, 1))
sketch2.addConstraint(Sketcher.Constraint("Coincident", 7, 2, 8, 1))
sketch2.addConstraint(Sketcher.Constraint("Coincident", 8, 2, 9, 1))
sketch2.addConstraint(Sketcher.Constraint("Coincident", 9, 2, 10, 1))
sketch2.addConstraint(Sketcher.Constraint("Coincident", 10, 2, 11, 1))
sketch2.addConstraint(Sketcher.Constraint("Coincident", 11, 2, 12, 1))
sketch2.addConstraint(Sketcher.Constraint("Coincident", 12, 2, 13, 1))
sketch2.addConstraint(Sketcher.Constraint("Coincident", 13, 2, 14, 1))
sketch2.addConstraint(Sketcher.Constraint("Coincident", 14, 2, 15, 1))
sketch2.addConstraint(Sketcher.Constraint("Coincident", 15, 2, 16, 1))
sketch2.addConstraint(Sketcher.Constraint("Coincident", 16, 2, 17, 1))
sketch2.addConstraint(Sketcher.Constraint("Coincident", 17, 2, 0, 1))
sketch2.addConstraint(Sketcher.Constraint("Coincident", 18, 1, 19, 1))
sketch2.addConstraint(Sketcher.Constraint("Coincident", 19, 2, 20, 2))
sketch2.addConstraint(Sketcher.Constraint("Coincident", 20, 1, 21, 1))
sketch2.addConstraint(Sketcher.Constraint("Coincident", 21, 2, 18, 2))
sketch2.addConstraint(Sketcher.Constraint("Coincident", 22, 1, 23, 2))
sketch2.addConstraint(Sketcher.Constraint("Coincident", 23, 1, 24, 2))
sketch2.addConstraint(Sketcher.Constraint("Coincident", 24, 1, 22, 2))
sketch2.addConstraint(Sketcher.Constraint("Coincident", 27, 1, 28, 2))
sketch2.addConstraint(Sketcher.Constraint("Coincident", 28, 1, 27, 2))
sketch2.addConstraint(Sketcher.Constraint("Horizontal", 19))
sketch2.addConstraint(Sketcher.Constraint("Vertical", 21))
sketch2.addConstraint(Sketcher.Constraint("Coincident", 6, 3, -1, 1))
sketch2.addConstraint(Sketcher.Constraint("Coincident", 14, 3, -1, 1))
sketch2.addConstraint(Sketcher.Constraint("Coincident", 22, 3, -1, 1))
sketch2.addConstraint(Sketcher.Constraint("Coincident", 23, 3, -1, 1))
sketch2.addConstraint(Sketcher.Constraint("Coincident", 2, 3, 1, 3))
sketch2.addConstraint(Sketcher.Constraint("Coincident", 17, 3, 16, 3))
sketch2.addConstraint(Sketcher.Constraint("Coincident", 18, 3, 16, 3))
sketch2.addConstraint(Sketcher.Constraint("Coincident", 20, 3, 16, 3))
sketch2.addConstraint(Sketcher.Constraint("Coincident", 25, 3, 1, 3))
sketch2.addConstraint(Sketcher.Constraint("Coincident", 27, 3, 10, 3))
sketch2.addConstraint(Sketcher.Constraint("PointOnObject", 10, 3, -2))
sketch2.addConstraint(Sketcher.Constraint("PointOnObject", 16, 3, -2))
sketch2.addConstraint(Sketcher.Constraint("PointOnObject", 28, 3, -2))
sketch2.addConstraint(Sketcher.Constraint("PointOnObject", 7, 2, -1))
sketch2.addConstraint(Sketcher.Constraint("PointOnObject", 12, 2, -1))
sketch2.addConstraint(Sketcher.Constraint("PointOnObject", 16, 2, -2))
sketch2.addConstraint(Sketcher.Constraint("PointOnObject", 20, 1, -2))
sketch2.addConstraint(Sketcher.Constraint("PointOnObject", 22, 1, -1))
sketch2.addConstraint(Sketcher.Constraint("PointOnObject", 23, 1, -2))
sketch2.addConstraint(Sketcher.Constraint("PointOnObject", 24, 1, -2))
sketch2.addConstraint(Sketcher.Constraint("PointOnObject", 28, 1, -2))
sketch2.addConstraint(Sketcher.Constraint("Diameter", 25, Q("0.25 in")))
sketch2.addConstraint(Sketcher.Constraint("Diameter", 26, Q("0.25 in")))
sketch2.addConstraint(Sketcher.Constraint("Radius", 1, Q("0.3125 in")))
sketch2.addConstraint(Sketcher.Constraint("Radius", 4, Q("0.313 in")))
sketch2.addConstraint(Sketcher.Constraint("Radius", 6, Q("0.625 in")))
sketch2.addConstraint(Sketcher.Constraint("Radius", 10, Q("0.375 in")))
sketch2.addConstraint(Sketcher.Constraint("Radius", 14, Q("0.625 in")))
sketch2.addConstraint(Sketcher.Constraint("Radius", 16, Q("0.375 in")))
sketch2.addConstraint(Sketcher.Constraint("Radius", 18, Q("0.375 in")))
sketch2.addConstraint(Sketcher.Constraint("Radius", 20, Q("0.125 in")))
sketch2.addConstraint(Sketcher.Constraint("Radius", 22, Q("0.125 in")))
sketch2.addConstraint(Sketcher.Constraint("Radius", 27, Q("0.125 in")))
sketch2.addConstraint(Sketcher.Constraint("DistanceY", 1, 3, 10, 3, Q("4.5 in")))
sketch2.addConstraint(Sketcher.Constraint("DistanceX", -1, 1, 1, 3, Q("1.75 in")))
sketch2.addConstraint(Sketcher.Constraint("DistanceY", 19, 2, 20, 1, Q("0.125 in")))
sketch2.addConstraint(Sketcher.Constraint("DistanceX", 24, 3, 22, 1, Q("0.125 in")))
sketch2.addConstraint(Sketcher.Constraint("DistanceY", 28, 1, 27, 1, Q("0.125 in")))
sketch2.addConstraint(Sketcher.Constraint("DistanceY", 28, 1, 9, 2, Q("0.125 in")))
sketch2.addConstraint(Sketcher.Constraint("DistanceY", 15, 2, -1, 1, Q("2.1958999 in")))
sketch2.addConstraint(Sketcher.Constraint("DistanceY", -1, 1, 26, 3, 45.781899))
sketch2.addConstraint(Sketcher.Constraint("DistanceX", 5, 2, 6, 2, 0.1095))
sketch2.addConstraint(Sketcher.Constraint("DistanceX", 8, 2, 7, 2, 0.1917))
sketch2.addConstraint(Sketcher.Constraint("Distance", 0, 44.082972))
sketch2.addConstraint(Sketcher.Constraint("Distance", 3, 25.522409))
sketch2.addConstraint(Sketcher.Constraint("Distance", 8, 1.749761))
sketch2.addConstraint(Sketcher.Constraint("Distance", 9, 57.088131))
sketch2.addConstraint(Sketcher.Constraint("DistanceX", -1, 1, 4, 3, 19.509012))
sketch2.addConstraint(Sketcher.Constraint("DistanceX", 26, 3, -1, 1, 5.017192))
sketch2.addConstraint(Sketcher.Constraint("DistanceY", 0, 2, -1, 1, 63.74876))
sketch2.addConstraint(Sketcher.Constraint("DistanceY", 2, 2, -1, 1, 47.883811))
sketch2.addConstraint(Sketcher.Constraint("DistanceY", 3, 2, -1, 1, 46.975759))
sketch2.addConstraint(Sketcher.Constraint("DistanceX", -1, 1, 4, 1, 11.610309))
sketch2.addConstraint(Sketcher.Constraint("DistanceY", 4, 1, -1, 1, 38.127171))
sketch2.addConstraint(Sketcher.Constraint("DistanceY", 5, 2, -1, 1, 2.281808))
sketch2.addConstraint(Sketcher.Constraint("DistanceX", 10, 2, -1, 1, 9.520869))
sketch2.addConstraint(Sketcher.Constraint("DistanceX", 14, 2, -1, 1, 15.694382))
sketch2.addConstraint(Sketcher.Constraint("DistanceY", 17, 2, -1, 1, 65.317171))
sketch2.addConstraint(Sketcher.Constraint("DistanceX", 12, 2, 11, 2, 0.190079))
sketch2.addConstraint(Sketcher.Constraint("DistanceX", 12, 2, 13, 2, 0.14497))
sketch2.addConstraint(Sketcher.Constraint("DistanceY", 13, 2, 11, 2, 2.986409))
sketch2.addConstraint(Sketcher.Constraint("Distance", 11, 57.374774))
sketch2.addConstraint(Sketcher.Constraint("DistanceY", 1, 2, -1, 1, 55.816285))
pad2 = body.newObject("PartDesign::Pad", "Pad001")
pad2.Profile = sketch2
pad2.Length = Q("1 in")

doc.recompute()
